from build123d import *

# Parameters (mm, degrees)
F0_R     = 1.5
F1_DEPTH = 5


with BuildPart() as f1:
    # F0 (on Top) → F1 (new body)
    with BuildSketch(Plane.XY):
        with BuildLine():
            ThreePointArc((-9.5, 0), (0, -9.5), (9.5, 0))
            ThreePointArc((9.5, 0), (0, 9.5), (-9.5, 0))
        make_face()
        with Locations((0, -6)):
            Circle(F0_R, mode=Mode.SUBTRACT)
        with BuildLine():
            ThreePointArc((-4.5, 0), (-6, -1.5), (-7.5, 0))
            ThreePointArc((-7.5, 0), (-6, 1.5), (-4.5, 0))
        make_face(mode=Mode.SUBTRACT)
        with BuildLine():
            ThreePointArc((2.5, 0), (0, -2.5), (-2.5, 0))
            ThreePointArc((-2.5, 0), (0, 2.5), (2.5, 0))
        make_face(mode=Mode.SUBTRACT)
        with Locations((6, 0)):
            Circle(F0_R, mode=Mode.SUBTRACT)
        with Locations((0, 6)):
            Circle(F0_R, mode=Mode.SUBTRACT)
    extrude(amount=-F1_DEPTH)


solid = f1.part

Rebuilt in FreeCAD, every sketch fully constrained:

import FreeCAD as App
import Part
import Sketcher
from FreeCAD import Vector
Q = App.Units.Quantity

doc = App.newDocument("Part")
body = doc.addObject("PartDesign::Body", "Body")

# Sketch on XY plane
sketch1 = body.newObject("Sketcher::SketchObject", "Sketch")
sketch1.AttachmentSupport = (doc.getObject("XY_Plane"), [""])
sketch1.MapMode = "FlatFace"
sketch1.addGeometry([
    Part.Circle(Vector(0, 0, 0), Vector(0, 0, 1), 9.5),  # 0
    Part.Circle(Vector(0, -6, 0), Vector(0, 0, 1), 1.5),  # 1
    Part.Circle(Vector(-6, 0, 0), Vector(0, 0, 1), 1.5),  # 2
    Part.Circle(Vector(0, 0, 0), Vector(0, 0, 1), 2.5),  # 3
    Part.Circle(Vector(6, 0, 0), Vector(0, 0, 1), 1.5),  # 4
    Part.Circle(Vector(0, 6, 0), Vector(0, 0, 1), 1.5),  # 5
], False)
sketch1.addConstraint([
    Sketcher.Constraint("Coincident", 0, 3, -1, 1),
    Sketcher.Constraint("Coincident", 3, 3, -1, 1),
    Sketcher.Constraint("Equal", 1, 2),
    Sketcher.Constraint("Equal", 2, 4),
    Sketcher.Constraint("Equal", 4, 5),
    Sketcher.Constraint("Symmetric", 2, 3, 4, 3, -1, 1),
    Sketcher.Constraint("Symmetric", 1, 3, 5, 3, -1, 1),
    Sketcher.Constraint("PointOnObject", 1, 3, -2),
    Sketcher.Constraint("PointOnObject", 2, 3, -1),
    Sketcher.Constraint("Diameter", 0, Q("19 mm")),
    Sketcher.Constraint("Diameter", 1, Q("3 mm")),
    Sketcher.Constraint("Diameter", 3, Q("5 mm")),
    Sketcher.Constraint("DistanceY", 1, 3, -1, 1, Q("6 mm")),
    Sketcher.Constraint("DistanceX", 2, 3, -1, 1, Q("6 mm")),
])
pad1 = body.newObject("PartDesign::Pad", "Pad")
pad1.Profile = sketch1
pad1.Length = 5
pad1.Reversed = True

doc.recompute()
